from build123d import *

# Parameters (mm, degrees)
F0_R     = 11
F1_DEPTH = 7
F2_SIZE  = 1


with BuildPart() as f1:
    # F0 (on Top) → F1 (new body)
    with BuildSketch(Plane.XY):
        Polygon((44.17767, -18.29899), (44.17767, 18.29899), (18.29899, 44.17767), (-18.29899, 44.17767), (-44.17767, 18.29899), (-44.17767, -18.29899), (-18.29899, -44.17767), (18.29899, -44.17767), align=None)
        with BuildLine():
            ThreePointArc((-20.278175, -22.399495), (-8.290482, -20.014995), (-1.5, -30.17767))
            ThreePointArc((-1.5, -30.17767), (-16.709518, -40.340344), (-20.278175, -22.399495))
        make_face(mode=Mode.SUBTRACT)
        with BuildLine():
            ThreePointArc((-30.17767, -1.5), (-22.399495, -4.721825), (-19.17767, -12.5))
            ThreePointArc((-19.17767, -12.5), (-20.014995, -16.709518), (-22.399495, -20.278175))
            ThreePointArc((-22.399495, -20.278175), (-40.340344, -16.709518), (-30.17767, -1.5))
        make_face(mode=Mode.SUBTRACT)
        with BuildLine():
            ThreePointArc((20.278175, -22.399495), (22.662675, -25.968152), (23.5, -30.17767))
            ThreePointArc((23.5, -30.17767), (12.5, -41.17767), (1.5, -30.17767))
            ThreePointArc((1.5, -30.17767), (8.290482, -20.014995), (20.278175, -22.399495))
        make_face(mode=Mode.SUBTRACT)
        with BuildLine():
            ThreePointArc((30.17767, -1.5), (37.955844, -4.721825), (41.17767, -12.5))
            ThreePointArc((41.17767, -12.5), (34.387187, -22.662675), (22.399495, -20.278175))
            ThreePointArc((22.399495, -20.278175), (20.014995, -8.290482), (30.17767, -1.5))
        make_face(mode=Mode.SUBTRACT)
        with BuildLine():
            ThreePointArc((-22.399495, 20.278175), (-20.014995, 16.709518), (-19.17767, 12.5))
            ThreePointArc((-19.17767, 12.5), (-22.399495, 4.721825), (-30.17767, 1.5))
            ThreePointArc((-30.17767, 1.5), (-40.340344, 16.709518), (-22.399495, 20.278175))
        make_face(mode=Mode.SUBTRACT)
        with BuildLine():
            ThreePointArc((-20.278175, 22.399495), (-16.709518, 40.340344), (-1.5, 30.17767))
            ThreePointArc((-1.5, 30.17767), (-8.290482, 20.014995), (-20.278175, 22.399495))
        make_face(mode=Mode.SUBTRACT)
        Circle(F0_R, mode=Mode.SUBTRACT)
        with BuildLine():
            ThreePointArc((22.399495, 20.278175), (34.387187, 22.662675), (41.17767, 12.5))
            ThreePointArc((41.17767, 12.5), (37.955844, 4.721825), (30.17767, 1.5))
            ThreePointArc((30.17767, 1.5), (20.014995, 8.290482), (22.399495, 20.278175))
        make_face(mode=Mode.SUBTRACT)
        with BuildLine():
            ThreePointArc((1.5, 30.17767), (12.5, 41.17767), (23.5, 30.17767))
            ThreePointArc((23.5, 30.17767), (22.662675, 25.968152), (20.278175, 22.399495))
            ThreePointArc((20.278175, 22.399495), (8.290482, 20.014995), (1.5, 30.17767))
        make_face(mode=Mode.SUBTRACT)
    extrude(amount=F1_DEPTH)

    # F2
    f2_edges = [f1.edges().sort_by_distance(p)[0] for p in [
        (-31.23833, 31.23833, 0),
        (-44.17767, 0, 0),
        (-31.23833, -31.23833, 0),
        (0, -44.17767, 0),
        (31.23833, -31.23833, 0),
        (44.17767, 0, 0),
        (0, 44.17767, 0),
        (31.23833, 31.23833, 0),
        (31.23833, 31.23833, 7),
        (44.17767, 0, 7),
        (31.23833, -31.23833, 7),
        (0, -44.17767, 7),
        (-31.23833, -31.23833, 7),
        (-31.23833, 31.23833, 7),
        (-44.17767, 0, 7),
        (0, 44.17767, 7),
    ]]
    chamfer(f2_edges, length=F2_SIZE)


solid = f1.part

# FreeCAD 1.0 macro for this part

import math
import FreeCAD as App
import Part
import Sketcher
from FreeCAD import Vector
Q = App.Units.Quantity


def edges_at(feature, points):
    """Names of the edges that pass closest to the given points."""
    edges = feature.Shape.Edges
    near = lambda p: min(range(len(edges)), key=lambda i: edges[i].distToShape(Part.Vertex(*p))[0])
    return sorted({f"Edge{near(p) + 1}" for p in points})

doc = App.newDocument("Part")
body = doc.addObject("PartDesign::Body", "Body")

# Sketch on XY plane
sketch1 = body.newObject("Sketcher::SketchObject", "Sketch")
sketch1.AttachmentSupport = (doc.getObject("XY_Plane"), [""])
sketch1.MapMode = "FlatFace"
sketch1.addGeometry([
    Part.LineSegment(Vector(44, -18, 0), Vector(44, 18, 0)),  # 0
    Part.LineSegment(Vector(44, 18, 0), Vector(18, 44, 0)),  # 1
    Part.LineSegment(Vector(18, 44, 0), Vector(-18, 44, 0)),  # 2
    Part.LineSegment(Vector(-18, 44, 0), Vector(-44, 18, 0)),  # 3
    Part.LineSegment(Vector(-44, 18, 0), Vector(-44, -18, 0)),  # 4
    Part.LineSegment(Vector(-44, -18, 0), Vector(-18, -44, 0)),  # 5
    Part.LineSegment(Vector(-18, -44, 0), Vector(18, -44, 0)),  # 6
    Part.LineSegment(Vector(18, -44, 0), Vector(44, -18, 0)),  # 7
    Part.ArcOfCircle(Part.Circle(Vector(-13, -30, 0), Vector(0, 0, 1), 11), math.radians(135), math.radians(360)),  # 8
    Part.ArcOfCircle(Part.Circle(Vector(-13, -30, 0), Vector(0, 0, 1), 11), math.radians(0), math.radians(135)),  # 9
    Part.ArcOfCircle(Part.Circle(Vector(-30, -13, 0), Vector(0, 0, 1), 11), math.radians(90), math.radians(315)),  # 10
    Part.ArcOfCircle(Part.Circle(Vector(-30, -12, 0), Vector(0, 0, 1), 11), math.radians(0), math.radians(90)),  # 11
    Part.ArcOfCircle(Part.Circle(Vector(-30, -13, 0), Vector(0, 0, 1), 11), math.radians(-45), math.radians(0)),  # 12
    Part.ArcOfCircle(Part.Circle(Vector(13, -30, 0), Vector(0, 0, 1), 11), math.radians(45), math.radians(180)),  # 13
    Part.ArcOfCircle(Part.Circle(Vector(12, -30, 0), Vector(0, 0, 1), 11), math.radians(0), math.radians(45)),  # 14
    Part.ArcOfCircle(Part.Circle(Vector(12, -30, 0), Vector(0, 0, 1), 11), math.radians(180), math.radians(360)),  # 15
    Part.ArcOfCircle(Part.Circle(Vector(30, -13, 0), Vector(0, 0, 1), 11), math.radians(90), math.radians(225)),  # 16
    Part.ArcOfCircle(Part.Circle(Vector(30, -13, 0), Vector(0, 0, 1), 11), math.radians(0), math.radians(90)),  # 17
    Part.ArcOfCircle(Part.Circle(Vector(30, -12, 0), Vector(0, 0, 1), 11), math.radians(-135), math.radians(0)),  # 18
    Part.ArcOfCircle(Part.Circle(Vector(-30, 13, 0), Vector(0, 0, 1), 11), math.radians(45), math.radians(270)),  # 19
    Part.ArcOfCircle(Part.Circle(Vector(-30, 13, 0), Vector(0, 0, 1), 11), math.radians(0), math.radians(45)),  # 20
    Part.ArcOfCircle(Part.Circle(Vector(-30, 12, 0), Vector(0, 0, 1), 11), math.radians(-90), math.radians(0)),  # 21
    Part.Circle(Vector(0, 0, 0), Vector(0, 0, 1), 11),  # 22
    Part.ArcOfCircle(Part.Circle(Vector(-13, 30, 0), Vector(0, 0, 1), 11), math.radians(-135), math.radians(0)),  # 23
    Part.ArcOfCircle(Part.Circle(Vector(-13, 30, 0), Vector(0, 0, 1), 11), math.radians(0), math.radians(225)),  # 24
    Part.ArcOfCircle(Part.Circle(Vector(30, 13, 0), Vector(0, 0, 1), 11), math.radians(135), math.radians(270)),  # 25
    Part.ArcOfCircle(Part.Circle(Vector(30, 12, 0), Vector(0, 0, 1), 11), math.radians(0), math.radians(135)),  # 26
    Part.ArcOfCircle(Part.Circle(Vector(30, 13, 0), Vector(0, 0, 1), 11), math.radians(-90), math.radians(0)),  # 27
    Part.ArcOfCircle(Part.Circle(Vector(13, 30, 0), Vector(0, 0, 1), 11), math.radians(180), math.radians(315)),  # 28
    Part.ArcOfCircle(Part.Circle(Vector(12, 30, 0), Vector(0, 0, 1), 11), math.radians(0), math.radians(180)),  # 29
    Part.ArcOfCircle(Part.Circle(Vector(12, 30, 0), Vector(0, 0, 1), 11), math.radians(-45), math.radians(0)),  # 30
], False)
sketch1.addConstraint([
    Sketcher.Constraint("Coincident", 0, 2, 1, 1),
    Sketcher.Constraint("Coincident", 1, 2, 2, 1),
    Sketcher.Constraint("Coincident", 2, 2, 3, 1),
    Sketcher.Constraint("Coincident", 3, 2, 4, 1),
    Sketcher.Constraint("Coincident", 4, 2, 5, 1),
    Sketcher.Constraint("Coincident", 5, 2, 6, 1),
    Sketcher.Constraint("Coincident", 6, 2, 7, 1),
    Sketcher.Constraint("Coincident", 7, 2, 0, 1),
    Sketcher.Constraint("Tangent", 8, 1, 9, 2),
    Sketcher.Constraint("Coincident", 9, 1, 8, 2),
    Sketcher.Constraint("Tangent", 10, 1, 11, 2),
    Sketcher.Constraint("Tangent", 11, 1, 12, 2),
    Sketcher.Constraint("Tangent", 12, 1, 10, 2),
    Sketcher.Constraint("Tangent", 13, 1, 14, 2),
    Sketcher.Constraint("Tangent", 14, 1, 15, 2),
    Sketcher.Constraint("Tangent", 15, 1, 13, 2),
    Sketcher.Constraint("Tangent", 16, 1, 17, 2),
    Sketcher.Constraint("Tangent", 17, 1, 18, 2),
    Sketcher.Constraint("Tangent", 18, 1, 16, 2),
    Sketcher.Constraint("Tangent", 19, 1, 20, 2),
    Sketcher.Constraint("Tangent", 20, 1, 21, 2),
    Sketcher.Constraint("Tangent", 21, 1, 19, 2),
    Sketcher.Constraint("Tangent", 23, 1, 24, 2),
    Sketcher.Constraint("Coincident", 24, 1, 23, 2),
    Sketcher.Constraint("Tangent", 25, 1, 26, 2),
    Sketcher.Constraint("Tangent", 26, 1, 27, 2),
    Sketcher.Constraint("Tangent", 27, 1, 25, 2),
    Sketcher.Constraint("Tangent", 28, 1, 29, 2),
    Sketcher.Constraint("Tangent", 29, 1, 30, 2),
    Sketcher.Constraint("Tangent", 30, 1, 28, 2),
    Sketcher.Constraint("Vertical", 0),
    Sketcher.Constraint("Horizontal", 2),
    Sketcher.Constraint("Vertical", 4),
    Sketcher.Constraint("Horizontal", 6),
    Sketcher.Constraint("Coincident", 22, 3, -1, 1),
    Sketcher.Constraint("Equal", 9, 10),
    Sketcher.Constraint("Equal", 12, 13),
    Sketcher.Constraint("Equal", 15, 16),
    Sketcher.Constraint("Equal", 18, 19),
    Sketcher.Constraint("Equal", 21, 22),
    Sketcher.Constraint("Equal", 22, 23),
    Sketcher.Constraint("Equal", 24, 25),
    Sketcher.Constraint("Equal", 27, 28),
    Sketcher.Constraint("Symmetric", 16, 3, 19, 3, -1, 1),
    Sketcher.Constraint("Symmetric", 13, 3, 23, 3, -1, 1),
    Sketcher.Constraint("Symmetric", 10, 3, 25, 3, -1, 1),
    Sketcher.Constraint("Symmetric", 8, 3, 28, 3, -1, 1),
    Sketcher.Constraint("Symmetric", 0, 2, 4, 2, -1, 1),
    Sketcher.Constraint("Symmetric", 1, 2, 5, 2, -1, 1),
    Sketcher.Constraint("Symmetric", 8, 3, 13, 3, -2),
    Sketcher.Constraint("Symmetric", 10, 3, 16, 3, -2),
    Sketcher.Constraint("Perpendicular", 1, 3),
    Sketcher.Constraint("Perpendicular", 5, 7),
    Sketcher.Constraint("Horizontal", 0, 2, 3, 2),
    Sketcher.Constraint("Horizontal", 4, 2, 7, 2),
    Sketcher.Constraint("Horizontal", 15, 3, 9, 1),
    Sketcher.Constraint("Horizontal", 18, 3, 11, 1),
    Sketcher.Constraint("Horizontal", 8, 1, 13, 1),
    Sketcher.Constraint("Horizontal", 9, 1, 14, 1),
    Sketcher.Constraint("Horizontal", 14, 1, 15, 1),
    Sketcher.Constraint("Horizontal", 11, 1, 17, 1),
    Sketcher.Constraint("Horizontal", 12, 1, 18, 1),
    Sketcher.Constraint("Horizontal", 27, 3, 20, 1),
    Sketcher.Constraint("Horizontal", 30, 3, 24, 1),
    Sketcher.Constraint("Horizontal", 19, 1, 25, 1),
    Sketcher.Constraint("Horizontal", 20, 1, 26, 1),
    Sketcher.Constraint("Horizontal", 24, 1, 28, 1),
    Sketcher.Constraint("Horizontal", 28, 1, 29, 1),
    Sketcher.Constraint("Horizontal", 23, 1, 30, 1),
    Sketcher.Constraint("Vertical", 2, 2, 5, 2),
    Sketcher.Constraint("Vertical", 21, 3, 10, 1),
    Sketcher.Constraint("Vertical", 27, 3, 16, 1),
    Sketcher.Constraint("Vertical", 12, 1, 19, 1),
    Sketcher.Constraint("Vertical", 10, 1, 21, 1),
    Sketcher.Constraint("Vertical", 8, 1, 23, 1),
    Sketcher.Constraint("Vertical", 16, 1, 27, 1),
    Sketcher.Constraint("Equal", 6, 0),
    Sketcher.Constraint("Diameter", 22, Q("22 mm")),
    Sketcher.Constraint("DistanceX", 8, 3, 13, 3, Q("25 mm")),
    Sketcher.Constraint("DistanceY", 11, 3, 19, 3, Q("24.999999 mm")),
    Sketcher.Constraint("DistanceX", 25, 3, 0, 2, Q("14 mm")),
    Sketcher.Constraint("DistanceY", 28, 3, 1, 2, Q("14 mm")),
    Sketcher.Constraint("DistanceX", 2, 2, 2, 1, Q("36.59798 mm")),
    Sketcher.Constraint("Distance", 1, Q("36.59798 mm")),
    Sketcher.Constraint("DistanceX", 12, 1, 8, 1, Q("2.12132 mm")),
    Sketcher.Constraint("DistanceX", 8, 1, -1, 1, Q("20.278175 mm")),
])
pad1 = body.newObject("PartDesign::Pad", "Pad")
pad1.Profile = sketch1
pad1.Length = 7
doc.recompute()

chamfer = body.newObject("PartDesign::Chamfer", "Chamfer")
chamfer.Base = (pad1, edges_at(pad1, [
    (-31.238, 31.238, 0),
    (-44.178, 0, 0),
    (-31.238, -31.238, 0),
    (0, -44.178, 0),
    (31.238, -31.238, 0),
    (44.178, 0, 0),
    (0, 44.178, 0),
    (31.238, 31.238, 0),
    (31.238, 31.238, 7),
    (44.178, 0, 7),
    (31.238, -31.238, 7),
    (0, -44.178, 7),
    (-31.238, -31.238, 7),
    (-31.238, 31.238, 7),
    (-44.178, 0, 7),
    (0, 44.178, 7),
]))
chamfer.Size = 1

doc.recompute()
